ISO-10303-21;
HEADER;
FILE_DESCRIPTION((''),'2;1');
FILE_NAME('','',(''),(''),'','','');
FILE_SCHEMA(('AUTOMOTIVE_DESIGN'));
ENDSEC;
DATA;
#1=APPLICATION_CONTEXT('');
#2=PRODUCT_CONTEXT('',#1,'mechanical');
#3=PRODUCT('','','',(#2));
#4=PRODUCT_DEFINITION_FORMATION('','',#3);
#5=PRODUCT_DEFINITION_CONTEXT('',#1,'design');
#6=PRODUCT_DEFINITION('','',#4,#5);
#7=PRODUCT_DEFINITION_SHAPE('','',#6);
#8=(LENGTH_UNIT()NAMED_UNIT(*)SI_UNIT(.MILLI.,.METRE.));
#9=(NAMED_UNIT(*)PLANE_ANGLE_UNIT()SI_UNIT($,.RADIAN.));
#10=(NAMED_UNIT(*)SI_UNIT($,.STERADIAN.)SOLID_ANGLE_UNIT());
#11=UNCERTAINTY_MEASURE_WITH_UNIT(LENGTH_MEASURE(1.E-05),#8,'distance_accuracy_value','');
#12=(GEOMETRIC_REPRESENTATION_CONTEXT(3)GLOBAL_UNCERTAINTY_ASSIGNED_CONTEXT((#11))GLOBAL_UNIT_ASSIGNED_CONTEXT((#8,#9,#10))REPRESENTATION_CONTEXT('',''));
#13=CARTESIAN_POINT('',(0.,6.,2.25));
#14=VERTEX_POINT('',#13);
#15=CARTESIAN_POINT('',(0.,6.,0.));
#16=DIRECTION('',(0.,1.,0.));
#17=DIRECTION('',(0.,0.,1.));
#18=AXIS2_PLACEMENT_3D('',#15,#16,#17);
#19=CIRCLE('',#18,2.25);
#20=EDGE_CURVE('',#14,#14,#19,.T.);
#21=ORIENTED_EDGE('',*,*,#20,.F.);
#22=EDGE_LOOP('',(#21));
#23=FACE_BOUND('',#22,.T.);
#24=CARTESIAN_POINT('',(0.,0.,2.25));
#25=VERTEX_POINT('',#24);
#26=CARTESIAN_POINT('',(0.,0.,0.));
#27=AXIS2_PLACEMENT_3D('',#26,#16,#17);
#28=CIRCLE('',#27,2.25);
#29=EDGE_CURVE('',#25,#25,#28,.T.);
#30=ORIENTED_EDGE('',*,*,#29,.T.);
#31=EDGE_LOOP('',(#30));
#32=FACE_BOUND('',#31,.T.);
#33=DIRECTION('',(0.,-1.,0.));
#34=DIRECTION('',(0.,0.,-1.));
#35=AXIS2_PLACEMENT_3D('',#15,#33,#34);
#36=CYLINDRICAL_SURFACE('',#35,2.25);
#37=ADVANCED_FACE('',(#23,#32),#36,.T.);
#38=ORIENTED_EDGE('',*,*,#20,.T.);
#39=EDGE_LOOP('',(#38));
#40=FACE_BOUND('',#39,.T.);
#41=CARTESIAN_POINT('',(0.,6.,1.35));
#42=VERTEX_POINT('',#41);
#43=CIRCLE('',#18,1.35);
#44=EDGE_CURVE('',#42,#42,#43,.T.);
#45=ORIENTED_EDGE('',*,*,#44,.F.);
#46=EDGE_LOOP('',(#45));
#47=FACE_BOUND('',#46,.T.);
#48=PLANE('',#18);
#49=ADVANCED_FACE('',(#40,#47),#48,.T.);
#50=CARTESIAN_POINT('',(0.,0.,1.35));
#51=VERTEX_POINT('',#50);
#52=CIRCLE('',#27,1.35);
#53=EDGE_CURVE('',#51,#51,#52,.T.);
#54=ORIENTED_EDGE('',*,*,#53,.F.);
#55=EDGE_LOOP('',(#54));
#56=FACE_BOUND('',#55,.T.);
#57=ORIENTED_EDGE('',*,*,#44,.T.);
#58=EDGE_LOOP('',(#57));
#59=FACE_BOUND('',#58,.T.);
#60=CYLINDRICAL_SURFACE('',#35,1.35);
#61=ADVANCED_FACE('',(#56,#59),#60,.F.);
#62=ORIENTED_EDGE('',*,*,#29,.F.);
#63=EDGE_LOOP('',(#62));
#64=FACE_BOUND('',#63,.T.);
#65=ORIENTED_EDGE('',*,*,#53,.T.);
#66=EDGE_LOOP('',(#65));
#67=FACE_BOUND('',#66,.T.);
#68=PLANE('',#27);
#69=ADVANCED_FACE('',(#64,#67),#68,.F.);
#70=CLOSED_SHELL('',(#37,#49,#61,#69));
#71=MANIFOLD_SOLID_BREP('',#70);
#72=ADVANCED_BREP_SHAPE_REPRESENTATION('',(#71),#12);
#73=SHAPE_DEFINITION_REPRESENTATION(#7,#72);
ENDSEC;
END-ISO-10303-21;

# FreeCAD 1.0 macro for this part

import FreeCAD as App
import Part
import Sketcher
from FreeCAD import Vector
Q = App.Units.Quantity

doc = App.newDocument("Part")
body = doc.addObject("PartDesign::Body", "Body")

# Sketch on XZ plane
sketch1 = body.newObject("Sketcher::SketchObject", "Sketch")
sketch1.AttachmentSupport = (doc.getObject("XZ_Plane"), [""])
sketch1.MapMode = "FlatFace"
sketch1.addGeometry([
    Part.Circle(Vector(0, 0, 0), Vector(0, 0, 1), 2.2),
    Part.Circle(Vector(0, 0, 0), Vector(0, 0, 1), 1.4),
], False)
sketch1.addConstraint([
    Sketcher.Constraint("Coincident", 0, 3, -1, 1),
    Sketcher.Constraint("Coincident", 1, 3, -1, 1),
    Sketcher.Constraint("Diameter", 0, Q("4.5 mm")),
    Sketcher.Constraint("Diameter", 1, Q("2.7 mm")),
])
pad1 = body.newObject("PartDesign::Pad", "Pad")
pad1.Profile = sketch1
pad1.Length = 6
pad1.Reversed = True

doc.recompute()
